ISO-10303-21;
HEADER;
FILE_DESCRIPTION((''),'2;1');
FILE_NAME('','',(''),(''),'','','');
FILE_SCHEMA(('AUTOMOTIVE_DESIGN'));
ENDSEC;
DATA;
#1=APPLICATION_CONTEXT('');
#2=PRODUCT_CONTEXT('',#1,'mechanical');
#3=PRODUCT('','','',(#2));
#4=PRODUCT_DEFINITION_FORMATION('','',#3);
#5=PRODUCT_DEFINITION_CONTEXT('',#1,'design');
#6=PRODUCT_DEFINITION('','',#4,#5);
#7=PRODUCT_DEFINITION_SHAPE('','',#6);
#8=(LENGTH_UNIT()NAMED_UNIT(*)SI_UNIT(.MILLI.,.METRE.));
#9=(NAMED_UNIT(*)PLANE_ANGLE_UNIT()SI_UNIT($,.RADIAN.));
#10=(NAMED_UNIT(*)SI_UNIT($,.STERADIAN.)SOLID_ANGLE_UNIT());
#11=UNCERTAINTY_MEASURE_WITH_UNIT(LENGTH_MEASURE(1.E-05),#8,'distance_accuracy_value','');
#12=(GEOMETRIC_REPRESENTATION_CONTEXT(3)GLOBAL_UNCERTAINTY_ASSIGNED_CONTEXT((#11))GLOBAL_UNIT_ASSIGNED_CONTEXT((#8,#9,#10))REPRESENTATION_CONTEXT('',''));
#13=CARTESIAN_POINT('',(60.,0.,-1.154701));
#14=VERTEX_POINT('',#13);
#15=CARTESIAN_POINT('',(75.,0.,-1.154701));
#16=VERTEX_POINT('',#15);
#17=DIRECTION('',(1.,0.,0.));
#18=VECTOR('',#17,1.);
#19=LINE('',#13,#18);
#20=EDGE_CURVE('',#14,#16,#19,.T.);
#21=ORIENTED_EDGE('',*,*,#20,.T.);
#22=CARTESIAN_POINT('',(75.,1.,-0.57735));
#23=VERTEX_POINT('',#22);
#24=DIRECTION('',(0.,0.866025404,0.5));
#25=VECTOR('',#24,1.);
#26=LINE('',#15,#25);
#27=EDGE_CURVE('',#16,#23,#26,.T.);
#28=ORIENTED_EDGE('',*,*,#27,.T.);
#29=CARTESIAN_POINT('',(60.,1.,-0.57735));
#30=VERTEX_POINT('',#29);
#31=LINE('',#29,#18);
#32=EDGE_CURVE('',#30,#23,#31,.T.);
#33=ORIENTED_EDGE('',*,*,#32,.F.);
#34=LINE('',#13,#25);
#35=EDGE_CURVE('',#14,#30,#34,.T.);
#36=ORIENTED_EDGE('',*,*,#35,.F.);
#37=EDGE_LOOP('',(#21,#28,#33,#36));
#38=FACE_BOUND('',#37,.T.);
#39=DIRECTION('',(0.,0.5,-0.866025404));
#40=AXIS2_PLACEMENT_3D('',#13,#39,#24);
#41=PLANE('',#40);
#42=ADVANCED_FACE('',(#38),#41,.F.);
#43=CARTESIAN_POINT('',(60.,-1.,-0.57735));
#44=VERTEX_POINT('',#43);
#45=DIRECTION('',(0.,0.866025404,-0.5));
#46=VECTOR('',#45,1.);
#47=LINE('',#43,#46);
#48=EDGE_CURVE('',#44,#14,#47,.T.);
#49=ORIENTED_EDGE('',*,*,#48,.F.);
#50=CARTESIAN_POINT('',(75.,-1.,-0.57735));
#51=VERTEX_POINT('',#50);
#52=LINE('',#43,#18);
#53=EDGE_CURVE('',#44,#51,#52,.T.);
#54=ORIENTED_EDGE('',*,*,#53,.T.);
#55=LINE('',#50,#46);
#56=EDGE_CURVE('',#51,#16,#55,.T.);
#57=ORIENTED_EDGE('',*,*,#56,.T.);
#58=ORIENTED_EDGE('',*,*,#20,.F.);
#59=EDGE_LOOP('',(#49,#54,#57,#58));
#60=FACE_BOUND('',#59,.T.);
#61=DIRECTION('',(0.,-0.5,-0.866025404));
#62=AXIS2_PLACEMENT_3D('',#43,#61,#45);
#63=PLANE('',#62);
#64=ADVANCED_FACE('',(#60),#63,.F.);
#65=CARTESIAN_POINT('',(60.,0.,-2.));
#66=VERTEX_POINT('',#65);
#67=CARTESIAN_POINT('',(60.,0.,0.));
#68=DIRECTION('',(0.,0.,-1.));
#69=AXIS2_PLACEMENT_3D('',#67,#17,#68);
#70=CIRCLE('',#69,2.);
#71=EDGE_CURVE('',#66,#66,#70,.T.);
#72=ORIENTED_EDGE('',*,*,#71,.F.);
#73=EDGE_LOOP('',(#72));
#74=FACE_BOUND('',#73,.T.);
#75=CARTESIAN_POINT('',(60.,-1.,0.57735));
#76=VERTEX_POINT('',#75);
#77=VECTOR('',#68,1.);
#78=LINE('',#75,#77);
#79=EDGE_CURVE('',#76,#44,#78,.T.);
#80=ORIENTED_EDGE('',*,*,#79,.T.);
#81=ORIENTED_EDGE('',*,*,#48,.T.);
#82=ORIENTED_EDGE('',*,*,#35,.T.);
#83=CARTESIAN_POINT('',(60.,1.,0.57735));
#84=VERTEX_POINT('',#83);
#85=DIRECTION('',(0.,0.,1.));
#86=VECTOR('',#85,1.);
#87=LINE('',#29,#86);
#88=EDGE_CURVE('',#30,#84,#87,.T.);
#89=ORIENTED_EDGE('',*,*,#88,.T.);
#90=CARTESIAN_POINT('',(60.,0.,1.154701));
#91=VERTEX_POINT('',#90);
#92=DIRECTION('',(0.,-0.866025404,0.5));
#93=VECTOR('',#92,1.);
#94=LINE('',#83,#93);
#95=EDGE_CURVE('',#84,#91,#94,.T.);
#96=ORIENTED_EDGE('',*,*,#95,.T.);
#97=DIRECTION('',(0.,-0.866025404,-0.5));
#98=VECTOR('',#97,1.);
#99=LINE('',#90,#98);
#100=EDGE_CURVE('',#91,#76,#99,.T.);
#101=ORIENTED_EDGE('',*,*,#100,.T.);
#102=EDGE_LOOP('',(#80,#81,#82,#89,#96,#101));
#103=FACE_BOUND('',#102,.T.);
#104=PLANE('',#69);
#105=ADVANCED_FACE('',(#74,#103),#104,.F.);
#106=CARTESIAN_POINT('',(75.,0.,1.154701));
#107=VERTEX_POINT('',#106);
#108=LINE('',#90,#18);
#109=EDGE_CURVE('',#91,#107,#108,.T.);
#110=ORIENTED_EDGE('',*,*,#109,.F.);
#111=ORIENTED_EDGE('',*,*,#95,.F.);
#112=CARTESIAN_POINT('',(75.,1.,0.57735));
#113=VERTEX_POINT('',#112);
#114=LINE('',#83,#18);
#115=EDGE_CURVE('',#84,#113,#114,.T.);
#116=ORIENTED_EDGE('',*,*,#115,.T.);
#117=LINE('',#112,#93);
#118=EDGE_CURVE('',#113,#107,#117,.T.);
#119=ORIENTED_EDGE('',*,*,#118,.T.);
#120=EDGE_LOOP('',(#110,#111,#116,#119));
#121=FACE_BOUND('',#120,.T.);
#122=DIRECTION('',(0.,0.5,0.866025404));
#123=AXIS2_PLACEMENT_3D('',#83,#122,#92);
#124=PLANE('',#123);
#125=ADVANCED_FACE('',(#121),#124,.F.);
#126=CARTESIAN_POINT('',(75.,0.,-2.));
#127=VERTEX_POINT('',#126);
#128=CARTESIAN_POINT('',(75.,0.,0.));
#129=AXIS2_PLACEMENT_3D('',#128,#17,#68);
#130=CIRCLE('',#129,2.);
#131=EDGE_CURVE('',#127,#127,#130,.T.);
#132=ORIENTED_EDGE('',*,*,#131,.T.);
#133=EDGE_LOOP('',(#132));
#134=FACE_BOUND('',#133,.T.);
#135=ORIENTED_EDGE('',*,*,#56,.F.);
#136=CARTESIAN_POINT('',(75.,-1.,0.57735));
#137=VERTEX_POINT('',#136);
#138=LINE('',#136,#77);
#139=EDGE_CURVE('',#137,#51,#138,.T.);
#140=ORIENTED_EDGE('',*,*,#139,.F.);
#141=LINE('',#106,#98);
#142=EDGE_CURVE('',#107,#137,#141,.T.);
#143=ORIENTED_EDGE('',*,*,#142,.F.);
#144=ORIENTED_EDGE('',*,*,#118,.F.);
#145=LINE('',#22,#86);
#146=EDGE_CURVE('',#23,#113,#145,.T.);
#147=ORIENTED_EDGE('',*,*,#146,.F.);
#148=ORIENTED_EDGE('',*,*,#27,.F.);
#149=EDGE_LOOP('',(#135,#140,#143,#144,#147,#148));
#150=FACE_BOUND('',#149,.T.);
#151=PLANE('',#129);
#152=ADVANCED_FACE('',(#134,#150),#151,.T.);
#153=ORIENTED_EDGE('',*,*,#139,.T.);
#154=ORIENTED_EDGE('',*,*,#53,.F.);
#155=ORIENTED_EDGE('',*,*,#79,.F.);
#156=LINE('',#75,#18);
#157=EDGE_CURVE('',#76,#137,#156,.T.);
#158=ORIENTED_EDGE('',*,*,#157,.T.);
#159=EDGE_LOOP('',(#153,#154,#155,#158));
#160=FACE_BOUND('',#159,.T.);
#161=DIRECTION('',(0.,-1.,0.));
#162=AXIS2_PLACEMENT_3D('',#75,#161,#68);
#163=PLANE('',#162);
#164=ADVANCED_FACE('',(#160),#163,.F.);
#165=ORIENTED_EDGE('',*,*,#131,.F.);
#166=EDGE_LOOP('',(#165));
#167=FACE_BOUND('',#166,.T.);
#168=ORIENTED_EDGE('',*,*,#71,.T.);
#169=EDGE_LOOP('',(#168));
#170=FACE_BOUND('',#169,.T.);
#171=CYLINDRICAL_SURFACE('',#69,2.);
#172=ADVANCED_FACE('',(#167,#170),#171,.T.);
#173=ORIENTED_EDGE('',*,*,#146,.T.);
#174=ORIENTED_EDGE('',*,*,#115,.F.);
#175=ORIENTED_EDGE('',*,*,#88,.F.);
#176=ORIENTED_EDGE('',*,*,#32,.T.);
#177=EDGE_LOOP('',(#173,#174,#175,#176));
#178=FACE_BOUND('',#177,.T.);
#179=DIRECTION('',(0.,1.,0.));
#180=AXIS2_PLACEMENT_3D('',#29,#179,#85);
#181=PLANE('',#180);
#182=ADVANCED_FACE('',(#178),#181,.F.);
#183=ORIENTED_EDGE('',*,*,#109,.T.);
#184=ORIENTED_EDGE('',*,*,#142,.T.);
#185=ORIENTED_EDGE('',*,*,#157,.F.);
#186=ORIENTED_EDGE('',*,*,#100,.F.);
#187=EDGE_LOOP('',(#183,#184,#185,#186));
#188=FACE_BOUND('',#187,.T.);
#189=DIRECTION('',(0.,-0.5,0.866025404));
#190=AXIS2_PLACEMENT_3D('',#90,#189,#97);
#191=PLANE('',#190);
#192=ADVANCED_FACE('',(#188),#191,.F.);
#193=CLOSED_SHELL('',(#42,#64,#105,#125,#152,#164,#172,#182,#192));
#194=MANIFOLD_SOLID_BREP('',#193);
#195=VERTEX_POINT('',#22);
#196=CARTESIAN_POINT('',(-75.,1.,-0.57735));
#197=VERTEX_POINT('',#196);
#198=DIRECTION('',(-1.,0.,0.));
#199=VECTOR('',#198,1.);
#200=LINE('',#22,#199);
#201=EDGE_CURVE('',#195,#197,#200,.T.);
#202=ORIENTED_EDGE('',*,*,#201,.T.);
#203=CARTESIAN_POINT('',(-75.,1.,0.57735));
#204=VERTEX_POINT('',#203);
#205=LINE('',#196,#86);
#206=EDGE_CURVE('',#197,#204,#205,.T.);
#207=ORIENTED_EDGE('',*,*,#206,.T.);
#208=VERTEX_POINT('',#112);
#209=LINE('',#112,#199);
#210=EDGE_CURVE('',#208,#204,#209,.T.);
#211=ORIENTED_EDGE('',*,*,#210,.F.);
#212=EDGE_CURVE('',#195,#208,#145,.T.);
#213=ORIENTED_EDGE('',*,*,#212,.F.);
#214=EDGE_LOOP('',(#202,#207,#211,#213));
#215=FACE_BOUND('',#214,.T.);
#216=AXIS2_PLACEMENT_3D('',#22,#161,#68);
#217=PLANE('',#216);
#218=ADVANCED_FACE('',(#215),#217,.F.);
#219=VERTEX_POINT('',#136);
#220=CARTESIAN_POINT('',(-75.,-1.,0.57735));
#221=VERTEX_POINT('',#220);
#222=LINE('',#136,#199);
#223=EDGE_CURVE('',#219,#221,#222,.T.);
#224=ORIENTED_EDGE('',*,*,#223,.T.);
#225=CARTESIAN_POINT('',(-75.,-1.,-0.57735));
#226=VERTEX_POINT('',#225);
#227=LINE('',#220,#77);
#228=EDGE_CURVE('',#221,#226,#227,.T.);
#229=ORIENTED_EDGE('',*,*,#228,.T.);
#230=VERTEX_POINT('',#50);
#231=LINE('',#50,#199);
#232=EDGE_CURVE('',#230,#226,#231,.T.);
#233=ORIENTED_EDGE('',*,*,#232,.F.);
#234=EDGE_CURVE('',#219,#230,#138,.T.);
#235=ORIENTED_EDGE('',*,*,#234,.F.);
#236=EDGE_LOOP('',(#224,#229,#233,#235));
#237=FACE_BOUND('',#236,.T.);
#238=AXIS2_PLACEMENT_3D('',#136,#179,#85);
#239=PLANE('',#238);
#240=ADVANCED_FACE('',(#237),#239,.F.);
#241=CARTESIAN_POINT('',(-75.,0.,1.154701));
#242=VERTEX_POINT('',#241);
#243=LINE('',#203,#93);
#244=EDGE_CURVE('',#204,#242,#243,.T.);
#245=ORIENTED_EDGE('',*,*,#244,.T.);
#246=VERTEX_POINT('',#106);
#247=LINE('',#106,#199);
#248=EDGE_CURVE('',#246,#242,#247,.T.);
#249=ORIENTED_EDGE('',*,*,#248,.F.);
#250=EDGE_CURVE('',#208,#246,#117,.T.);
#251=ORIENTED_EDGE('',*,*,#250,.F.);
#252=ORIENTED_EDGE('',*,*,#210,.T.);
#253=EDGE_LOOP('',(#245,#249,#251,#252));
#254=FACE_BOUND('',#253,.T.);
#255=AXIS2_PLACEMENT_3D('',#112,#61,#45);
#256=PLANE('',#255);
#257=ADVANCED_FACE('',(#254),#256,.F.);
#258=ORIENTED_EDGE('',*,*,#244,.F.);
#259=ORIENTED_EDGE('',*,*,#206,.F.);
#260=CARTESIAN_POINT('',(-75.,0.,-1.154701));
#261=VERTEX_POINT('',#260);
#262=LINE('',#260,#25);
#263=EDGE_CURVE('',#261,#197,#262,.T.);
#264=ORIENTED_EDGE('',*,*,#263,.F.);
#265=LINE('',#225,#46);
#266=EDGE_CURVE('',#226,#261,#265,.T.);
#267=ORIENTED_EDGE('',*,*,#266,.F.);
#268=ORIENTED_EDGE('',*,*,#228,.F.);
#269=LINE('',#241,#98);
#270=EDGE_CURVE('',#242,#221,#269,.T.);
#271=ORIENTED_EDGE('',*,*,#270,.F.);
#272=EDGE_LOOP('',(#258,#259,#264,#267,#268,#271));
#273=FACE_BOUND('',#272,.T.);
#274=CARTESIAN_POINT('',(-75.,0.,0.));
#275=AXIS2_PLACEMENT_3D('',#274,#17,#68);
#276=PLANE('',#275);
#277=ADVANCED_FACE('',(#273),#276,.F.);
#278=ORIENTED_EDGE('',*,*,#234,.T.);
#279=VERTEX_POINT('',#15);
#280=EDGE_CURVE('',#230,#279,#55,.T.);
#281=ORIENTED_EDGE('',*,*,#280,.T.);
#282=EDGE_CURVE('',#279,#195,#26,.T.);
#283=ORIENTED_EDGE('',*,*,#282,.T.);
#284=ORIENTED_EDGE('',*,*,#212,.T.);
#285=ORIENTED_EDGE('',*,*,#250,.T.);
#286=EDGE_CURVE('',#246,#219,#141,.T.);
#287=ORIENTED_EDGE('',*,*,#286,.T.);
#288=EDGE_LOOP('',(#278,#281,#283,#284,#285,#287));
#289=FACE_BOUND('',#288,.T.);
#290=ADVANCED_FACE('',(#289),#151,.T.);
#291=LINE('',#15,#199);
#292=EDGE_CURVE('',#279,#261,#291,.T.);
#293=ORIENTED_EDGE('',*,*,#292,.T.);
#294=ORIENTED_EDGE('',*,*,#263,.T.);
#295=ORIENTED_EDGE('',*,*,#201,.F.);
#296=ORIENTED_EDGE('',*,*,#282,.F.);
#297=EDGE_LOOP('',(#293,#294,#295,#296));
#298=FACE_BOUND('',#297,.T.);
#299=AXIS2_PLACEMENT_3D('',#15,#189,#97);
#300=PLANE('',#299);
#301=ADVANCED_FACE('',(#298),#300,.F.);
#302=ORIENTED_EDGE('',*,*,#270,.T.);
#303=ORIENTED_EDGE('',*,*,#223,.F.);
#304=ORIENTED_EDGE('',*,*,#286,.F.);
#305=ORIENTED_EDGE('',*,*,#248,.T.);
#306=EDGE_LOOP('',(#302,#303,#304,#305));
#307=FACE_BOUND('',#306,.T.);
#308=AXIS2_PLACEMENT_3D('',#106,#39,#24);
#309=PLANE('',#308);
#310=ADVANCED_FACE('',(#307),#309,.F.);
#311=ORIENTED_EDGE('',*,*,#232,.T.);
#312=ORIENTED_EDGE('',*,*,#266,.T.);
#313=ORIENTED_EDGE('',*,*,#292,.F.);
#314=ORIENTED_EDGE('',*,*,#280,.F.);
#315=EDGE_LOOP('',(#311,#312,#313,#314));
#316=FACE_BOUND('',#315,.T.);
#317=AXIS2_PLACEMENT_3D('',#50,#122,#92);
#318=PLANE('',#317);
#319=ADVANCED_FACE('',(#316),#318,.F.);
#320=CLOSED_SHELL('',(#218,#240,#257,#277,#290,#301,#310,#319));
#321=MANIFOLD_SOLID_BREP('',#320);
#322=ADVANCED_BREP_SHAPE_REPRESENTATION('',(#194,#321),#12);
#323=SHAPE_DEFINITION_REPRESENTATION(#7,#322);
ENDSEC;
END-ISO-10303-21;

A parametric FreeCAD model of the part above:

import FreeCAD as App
import Part
import Sketcher
Q = App.Units.Quantity

doc = App.newDocument("Part")
body = doc.addObject("PartDesign::Body", "Body")

# Sketch on YZ plane
sketch1 = body.newObject("Sketcher::SketchObject", "Sketch")
sketch1.AttachmentSupport = (doc.getObject("YZ_Plane"), [""])
sketch1.MapMode = "FlatFace"
sketch1.addGeometry([
    Part.LineSegment(App.Vector(0, -1.2, 0), App.Vector(1, -0.6, 0)),  # 0
    Part.LineSegment(App.Vector(1, -0.6, 0), App.Vector(1, 0.6, 0)),  # 1
    Part.LineSegment(App.Vector(1, 0.6, 0), App.Vector(0, 1.2, 0)),  # 2
    Part.LineSegment(App.Vector(0, 1.2, 0), App.Vector(-1, 0.6, 0)),  # 3
    Part.LineSegment(App.Vector(-1, 0.6, 0), App.Vector(-1, -0.6, 0)),  # 4
    Part.LineSegment(App.Vector(-1, -0.6, 0), App.Vector(0, -1.2, 0)),  # 5
], False)
sketch1.addConstraint([
    Sketcher.Constraint("Coincident", 0, 2, 1, 1),
    Sketcher.Constraint("Coincident", 1, 2, 2, 1),
    Sketcher.Constraint("Coincident", 2, 2, 3, 1),
    Sketcher.Constraint("Coincident", 3, 2, 4, 1),
    Sketcher.Constraint("Coincident", 4, 2, 5, 1),
    Sketcher.Constraint("Coincident", 5, 2, 0, 1),
    Sketcher.Constraint("Vertical", 1),
    Sketcher.Constraint("Vertical", 4),
    Sketcher.Constraint("Symmetric", 0, 2, 3, 2, -1, 1),
    Sketcher.Constraint("Symmetric", 2, 2, 5, 2, -1, 1),
    Sketcher.Constraint("PointOnObject", 2, 2, -2),
    Sketcher.Constraint("Parallel", 2, 5),
    Sketcher.Constraint("Horizontal", 1, 2, 3, 2),
    Sketcher.Constraint("Angle", 0, Q("30 deg")),
    Sketcher.Constraint("DistanceX", -1, 1, 0, 2, Q("1 mm")),
    Sketcher.Constraint("DistanceY", 1, 1, 1, 2, Q("1.154701 mm")),
])
pad1 = body.newObject("PartDesign::Pad", "Pad")
pad1.Profile = sketch1
pad1.Length = 150
pad1.Midplane = True
body2 = doc.addObject("PartDesign::Body", "Body001")

# Sketch on YZ plane
sketch2 = body2.newObject("Sketcher::SketchObject", "Sketch001")
sketch2.AttachmentSupport = (doc.getObject("YZ_Plane001"), [""])
sketch2.MapMode = "FlatFace"
sketch2.AttachmentOffset = App.Placement(App.Vector(0, 0, 75), App.Rotation())
sketch2.addGeometry([
    Part.Circle(App.Vector(0, 0, 0), App.Vector(0, 0, 1), 2),  # 0
    Part.LineSegment(App.Vector(0, -1.2, 0), App.Vector(-1, -0.6, 0)),  # 1
    Part.LineSegment(App.Vector(-1, -0.6, 0), App.Vector(-1, 0.6, 0)),  # 2
    Part.LineSegment(App.Vector(-1, 0.6, 0), App.Vector(0, 1.2, 0)),  # 3
    Part.LineSegment(App.Vector(0, 1.2, 0), App.Vector(1, 0.6, 0)),  # 4
    Part.LineSegment(App.Vector(1, 0.6, 0), App.Vector(1, -0.6, 0)),  # 5
    Part.LineSegment(App.Vector(1, -0.6, 0), App.Vector(0, -1.2, 0)),  # 6
], False)
sketch2.addConstraint([
    Sketcher.Constraint("Coincident", 1, 2, 2, 1),
    Sketcher.Constraint("Coincident", 2, 2, 3, 1),
    Sketcher.Constraint("Coincident", 3, 2, 4, 1),
    Sketcher.Constraint("Coincident", 4, 2, 5, 1),
    Sketcher.Constraint("Coincident", 5, 2, 6, 1),
    Sketcher.Constraint("Coincident", 6, 2, 1, 1),
    Sketcher.Constraint("Vertical", 2),
    Sketcher.Constraint("Vertical", 5),
    Sketcher.Constraint("Coincident", 0, 3, -1, 1),
    Sketcher.Constraint("Symmetric", 1, 2, 4, 2, -1, 1),
    Sketcher.Constraint("Symmetric", 3, 2, 6, 2, -1, 1),
    Sketcher.Constraint("PointOnObject", 3, 2, -2),
    Sketcher.Constraint("Parallel", 3, 6),
    Sketcher.Constraint("Horizontal", 2, 2, 4, 2),
    Sketcher.Constraint("Diameter", 0, Q("4 mm")),
    Sketcher.Constraint("Angle", 1, Q("150 deg")),
    Sketcher.Constraint("DistanceX", 1, 2, -1, 1, Q("1 mm")),
    Sketcher.Constraint("DistanceY", 2, 1, 2, 2, Q("1.154701 mm")),
])
pad2 = body2.newObject("PartDesign::Pad", "Pad001")
pad2.Profile = sketch2
pad2.Length = 15
pad2.Reversed = True

doc.recompute()
